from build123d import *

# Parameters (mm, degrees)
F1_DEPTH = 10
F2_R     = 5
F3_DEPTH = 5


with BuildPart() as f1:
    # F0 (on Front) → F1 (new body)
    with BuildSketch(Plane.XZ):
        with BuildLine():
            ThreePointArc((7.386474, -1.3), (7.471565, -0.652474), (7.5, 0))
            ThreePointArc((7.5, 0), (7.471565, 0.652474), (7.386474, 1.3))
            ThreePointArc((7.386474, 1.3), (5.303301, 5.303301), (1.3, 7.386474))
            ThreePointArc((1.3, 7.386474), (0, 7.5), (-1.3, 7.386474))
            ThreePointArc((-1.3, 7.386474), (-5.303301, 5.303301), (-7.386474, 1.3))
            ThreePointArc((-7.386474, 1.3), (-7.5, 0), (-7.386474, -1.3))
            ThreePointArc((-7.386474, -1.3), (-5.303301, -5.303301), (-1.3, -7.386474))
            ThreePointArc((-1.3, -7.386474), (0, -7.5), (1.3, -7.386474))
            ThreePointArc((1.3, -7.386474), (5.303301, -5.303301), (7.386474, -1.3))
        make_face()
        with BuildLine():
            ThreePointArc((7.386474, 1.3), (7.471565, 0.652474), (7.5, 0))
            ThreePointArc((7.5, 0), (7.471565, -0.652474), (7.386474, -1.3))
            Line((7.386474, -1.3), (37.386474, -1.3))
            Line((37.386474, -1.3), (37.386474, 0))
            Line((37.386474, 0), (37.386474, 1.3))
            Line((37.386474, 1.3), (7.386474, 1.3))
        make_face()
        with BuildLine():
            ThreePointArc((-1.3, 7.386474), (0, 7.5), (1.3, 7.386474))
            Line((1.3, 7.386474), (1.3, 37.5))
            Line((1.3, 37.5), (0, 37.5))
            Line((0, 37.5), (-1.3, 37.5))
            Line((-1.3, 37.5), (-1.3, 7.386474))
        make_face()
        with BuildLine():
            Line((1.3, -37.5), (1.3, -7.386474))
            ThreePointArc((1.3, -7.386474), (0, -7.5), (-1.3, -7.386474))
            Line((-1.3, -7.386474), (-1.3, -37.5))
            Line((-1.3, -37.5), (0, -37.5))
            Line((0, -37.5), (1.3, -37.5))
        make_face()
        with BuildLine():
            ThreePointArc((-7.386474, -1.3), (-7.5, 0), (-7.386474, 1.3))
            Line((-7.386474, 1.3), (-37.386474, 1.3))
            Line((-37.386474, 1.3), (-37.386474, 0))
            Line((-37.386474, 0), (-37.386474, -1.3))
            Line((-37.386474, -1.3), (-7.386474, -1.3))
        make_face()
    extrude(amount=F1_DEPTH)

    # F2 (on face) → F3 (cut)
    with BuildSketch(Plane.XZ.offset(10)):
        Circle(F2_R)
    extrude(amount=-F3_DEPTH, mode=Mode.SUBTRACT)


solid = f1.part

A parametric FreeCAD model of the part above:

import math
import FreeCAD as App
import Part
import Sketcher
from FreeCAD import Vector
Q = App.Units.Quantity

doc = App.newDocument("Part")
params = doc.addObject("Spreadsheet::Sheet", "Params")
for row, (alias, value) in enumerate([
    ("sketch1_radius", "7.499998 mm"),
    ("sketch1_width", "30 mm"),
    ("sketch1_width2", "2.6 mm"),
    ("pad1_length", "10 mm"),
    ("sketch2_diameter", "10 mm"),
    ("pocket1_length", "5 mm"),
], start=1):
    params.set(f"A{row}", alias)
    params.set(f"B{row}", "=" + value)
    params.setAlias(f"B{row}", alias)

body = doc.addObject("PartDesign::Body", "Body")

# Sketch on XZ plane
sketch1 = body.newObject("Sketcher::SketchObject", "Sketch")
sketch1.AttachmentSupport = (doc.getObject("XZ_Plane"), [""])
sketch1.MapMode = "FlatFace"
sketch1.addGeometry(Part.ArcOfCircle(Part.Circle(Vector(0, 0, 0), Vector(0, 0, 1), 7.5), math.radians(10), math.radians(80)), False)
sketch1.addGeometry(Part.LineSegment(Vector(1.3, 7.4, 0), Vector(1.3, 37.5, 0)), False)
sketch1.addGeometry(Part.LineSegment(Vector(1.3, 37.5, 0), Vector(-1.3, 37.5, 0)), False)
sketch1.addGeometry(Part.LineSegment(Vector(-1.3, 37.5, 0), Vector(-1.3, 7.4, 0)), False)
sketch1.addGeometry(Part.ArcOfCircle(Part.Circle(Vector(0, 0, 0), Vector(0, 0, 1), 7.5), math.radians(100), math.radians(170)), False)
sketch1.addGeometry(Part.LineSegment(Vector(-7.4, 1.3, 0), Vector(-37.4, 1.3, 0)), False)
sketch1.addGeometry(Part.LineSegment(Vector(-37.4, 1.3, 0), Vector(-37.4, -1.3, 0)), False)
sketch1.addGeometry(Part.LineSegment(Vector(-37.4, -1.3, 0), Vector(-7.4, -1.3, 0)), False)
sketch1.addGeometry(Part.ArcOfCircle(Part.Circle(Vector(0, 0, 0), Vector(0, 0, 1), 7.5), math.radians(-170), math.radians(-100)), False)
sketch1.addGeometry(Part.LineSegment(Vector(-1.3, -7.4, 0), Vector(-1.3, -37.5, 0)), False)
sketch1.addGeometry(Part.LineSegment(Vector(-1.3, -37.5, 0), Vector(1.3, -37.5, 0)), False)
sketch1.addGeometry(Part.LineSegment(Vector(1.3, -37.5, 0), Vector(1.3, -7.4, 0)), False)
sketch1.addGeometry(Part.ArcOfCircle(Part.Circle(Vector(0, 0, 0), Vector(0, 0, 1), 7.5), math.radians(-80), math.radians(-10)), False)
sketch1.addGeometry(Part.LineSegment(Vector(7.4, -1.3, 0), Vector(37.4, -1.3, 0)), False)
sketch1.addGeometry(Part.LineSegment(Vector(37.4, -1.3, 0), Vector(37.4, 1.3, 0)), False)
sketch1.addGeometry(Part.LineSegment(Vector(37.4, 1.3, 0), Vector(7.4, 1.3, 0)), False)
sketch1.addConstraint(Sketcher.Constraint("Coincident", 0, 2, 1, 1))
sketch1.addConstraint(Sketcher.Constraint("Coincident", 1, 2, 2, 1))
sketch1.addConstraint(Sketcher.Constraint("Coincident", 2, 2, 3, 1))
sketch1.addConstraint(Sketcher.Constraint("Coincident", 3, 2, 4, 1))
sketch1.addConstraint(Sketcher.Constraint("Coincident", 4, 2, 5, 1))
sketch1.addConstraint(Sketcher.Constraint("Coincident", 5, 2, 6, 1))
sketch1.addConstraint(Sketcher.Constraint("Coincident", 6, 2, 7, 1))
sketch1.addConstraint(Sketcher.Constraint("Coincident", 7, 2, 8, 1))
sketch1.addConstraint(Sketcher.Constraint("Coincident", 8, 2, 9, 1))
sketch1.addConstraint(Sketcher.Constraint("Coincident", 9, 2, 10, 1))
sketch1.addConstraint(Sketcher.Constraint("Coincident", 10, 2, 11, 1))
sketch1.addConstraint(Sketcher.Constraint("Coincident", 11, 2, 12, 1))
sketch1.addConstraint(Sketcher.Constraint("Coincident", 12, 2, 13, 1))
sketch1.addConstraint(Sketcher.Constraint("Coincident", 13, 2, 14, 1))
sketch1.addConstraint(Sketcher.Constraint("Coincident", 14, 2, 15, 1))
sketch1.addConstraint(Sketcher.Constraint("Coincident", 15, 2, 0, 1))
sketch1.addConstraint(Sketcher.Constraint("Vertical", 1))
sketch1.addConstraint(Sketcher.Constraint("Horizontal", 2))
sketch1.addConstraint(Sketcher.Constraint("Vertical", 3))
sketch1.addConstraint(Sketcher.Constraint("Horizontal", 5))
sketch1.addConstraint(Sketcher.Constraint("Vertical", 6))
sketch1.addConstraint(Sketcher.Constraint("Horizontal", 7))
sketch1.addConstraint(Sketcher.Constraint("Vertical", 9))
sketch1.addConstraint(Sketcher.Constraint("Horizontal", 10))
sketch1.addConstraint(Sketcher.Constraint("Vertical", 11))
sketch1.addConstraint(Sketcher.Constraint("Horizontal", 13))
sketch1.addConstraint(Sketcher.Constraint("Vertical", 14))
sketch1.addConstraint(Sketcher.Constraint("Horizontal", 15))
sketch1.addConstraint(Sketcher.Constraint("Coincident", 0, 3, -1, 1))
sketch1.addConstraint(Sketcher.Constraint("Coincident", 4, 3, -1, 1))
sketch1.addConstraint(Sketcher.Constraint("Coincident", 8, 3, -1, 1))
sketch1.addConstraint(Sketcher.Constraint("Coincident", 12, 3, -1, 1))
sketch1.addConstraint(Sketcher.Constraint("Equal", 0, 4))
sketch1.addConstraint(Sketcher.Constraint("Equal", 4, 8))
sketch1.addConstraint(Sketcher.Constraint("Equal", 8, 12))
sketch1.addConstraint(Sketcher.Constraint("Symmetric", 1, 2, 9, 2, -1, 1))
sketch1.addConstraint(Sketcher.Constraint("Symmetric", 5, 2, 13, 2, -1, 1))
sketch1.addConstraint(Sketcher.Constraint("Horizontal", 0, 2, 3, 2))
sketch1.addConstraint(Sketcher.Constraint("Horizontal", 8, 2, 11, 2))
sketch1.addConstraint(Sketcher.Constraint("Horizontal", 7, 2, 12, 2))
sketch1.addConstraint(Sketcher.Constraint("Horizontal", 5, 2, 14, 2))
sketch1.addConstraint(Sketcher.Constraint("Equal", 10, 6))
sketch1.addConstraint(Sketcher.Constraint("Radius", 0, Q("7.499998 mm")))
sketch1.addConstraint(Sketcher.Constraint("DistanceX", 5, 2, 5, 1, Q("30 mm")))
sketch1.addConstraint(Sketcher.Constraint("DistanceX", 2, 2, 2, 1, Q("2.6 mm")))
sketch1.addConstraint(Sketcher.Constraint("DistanceY", -1, 1, 1, 2, Q("37.5 mm")))
sketch1.setExpression("Constraints[42]", "Params.sketch1_radius")
sketch1.setExpression("Constraints[43]", "Params.sketch1_width")
sketch1.setExpression("Constraints[44]", "Params.sketch1_width2")
pad1 = body.newObject("PartDesign::Pad", "Pad")
pad1.Profile = sketch1
pad1.setExpression("Length", "Params.pad1_length")

# Sketch on XZ plane
sketch2 = body.newObject("Sketcher::SketchObject", "Sketch001")
sketch2.AttachmentSupport = (doc.getObject("XZ_Plane"), [""])
sketch2.MapMode = "FlatFace"
sketch2.AttachmentOffset = App.Placement(Vector(0, 0, 10), App.Rotation())
sketch2.addGeometry(Part.Circle(Vector(0, 0, 0), Vector(0, 0, 1), 5), False)
sketch2.addConstraint(Sketcher.Constraint("Coincident", 0, 3, -1, 1))
sketch2.addConstraint(Sketcher.Constraint("Diameter", 0, Q("10 mm")))
sketch2.setExpression("Constraints[1]", "Params.sketch2_diameter")
pocket1 = body.newObject("PartDesign::Pocket", "Pocket")
pocket1.Profile = sketch2
pocket1.setExpression("Length", "Params.pocket1_length")

doc.recompute()
